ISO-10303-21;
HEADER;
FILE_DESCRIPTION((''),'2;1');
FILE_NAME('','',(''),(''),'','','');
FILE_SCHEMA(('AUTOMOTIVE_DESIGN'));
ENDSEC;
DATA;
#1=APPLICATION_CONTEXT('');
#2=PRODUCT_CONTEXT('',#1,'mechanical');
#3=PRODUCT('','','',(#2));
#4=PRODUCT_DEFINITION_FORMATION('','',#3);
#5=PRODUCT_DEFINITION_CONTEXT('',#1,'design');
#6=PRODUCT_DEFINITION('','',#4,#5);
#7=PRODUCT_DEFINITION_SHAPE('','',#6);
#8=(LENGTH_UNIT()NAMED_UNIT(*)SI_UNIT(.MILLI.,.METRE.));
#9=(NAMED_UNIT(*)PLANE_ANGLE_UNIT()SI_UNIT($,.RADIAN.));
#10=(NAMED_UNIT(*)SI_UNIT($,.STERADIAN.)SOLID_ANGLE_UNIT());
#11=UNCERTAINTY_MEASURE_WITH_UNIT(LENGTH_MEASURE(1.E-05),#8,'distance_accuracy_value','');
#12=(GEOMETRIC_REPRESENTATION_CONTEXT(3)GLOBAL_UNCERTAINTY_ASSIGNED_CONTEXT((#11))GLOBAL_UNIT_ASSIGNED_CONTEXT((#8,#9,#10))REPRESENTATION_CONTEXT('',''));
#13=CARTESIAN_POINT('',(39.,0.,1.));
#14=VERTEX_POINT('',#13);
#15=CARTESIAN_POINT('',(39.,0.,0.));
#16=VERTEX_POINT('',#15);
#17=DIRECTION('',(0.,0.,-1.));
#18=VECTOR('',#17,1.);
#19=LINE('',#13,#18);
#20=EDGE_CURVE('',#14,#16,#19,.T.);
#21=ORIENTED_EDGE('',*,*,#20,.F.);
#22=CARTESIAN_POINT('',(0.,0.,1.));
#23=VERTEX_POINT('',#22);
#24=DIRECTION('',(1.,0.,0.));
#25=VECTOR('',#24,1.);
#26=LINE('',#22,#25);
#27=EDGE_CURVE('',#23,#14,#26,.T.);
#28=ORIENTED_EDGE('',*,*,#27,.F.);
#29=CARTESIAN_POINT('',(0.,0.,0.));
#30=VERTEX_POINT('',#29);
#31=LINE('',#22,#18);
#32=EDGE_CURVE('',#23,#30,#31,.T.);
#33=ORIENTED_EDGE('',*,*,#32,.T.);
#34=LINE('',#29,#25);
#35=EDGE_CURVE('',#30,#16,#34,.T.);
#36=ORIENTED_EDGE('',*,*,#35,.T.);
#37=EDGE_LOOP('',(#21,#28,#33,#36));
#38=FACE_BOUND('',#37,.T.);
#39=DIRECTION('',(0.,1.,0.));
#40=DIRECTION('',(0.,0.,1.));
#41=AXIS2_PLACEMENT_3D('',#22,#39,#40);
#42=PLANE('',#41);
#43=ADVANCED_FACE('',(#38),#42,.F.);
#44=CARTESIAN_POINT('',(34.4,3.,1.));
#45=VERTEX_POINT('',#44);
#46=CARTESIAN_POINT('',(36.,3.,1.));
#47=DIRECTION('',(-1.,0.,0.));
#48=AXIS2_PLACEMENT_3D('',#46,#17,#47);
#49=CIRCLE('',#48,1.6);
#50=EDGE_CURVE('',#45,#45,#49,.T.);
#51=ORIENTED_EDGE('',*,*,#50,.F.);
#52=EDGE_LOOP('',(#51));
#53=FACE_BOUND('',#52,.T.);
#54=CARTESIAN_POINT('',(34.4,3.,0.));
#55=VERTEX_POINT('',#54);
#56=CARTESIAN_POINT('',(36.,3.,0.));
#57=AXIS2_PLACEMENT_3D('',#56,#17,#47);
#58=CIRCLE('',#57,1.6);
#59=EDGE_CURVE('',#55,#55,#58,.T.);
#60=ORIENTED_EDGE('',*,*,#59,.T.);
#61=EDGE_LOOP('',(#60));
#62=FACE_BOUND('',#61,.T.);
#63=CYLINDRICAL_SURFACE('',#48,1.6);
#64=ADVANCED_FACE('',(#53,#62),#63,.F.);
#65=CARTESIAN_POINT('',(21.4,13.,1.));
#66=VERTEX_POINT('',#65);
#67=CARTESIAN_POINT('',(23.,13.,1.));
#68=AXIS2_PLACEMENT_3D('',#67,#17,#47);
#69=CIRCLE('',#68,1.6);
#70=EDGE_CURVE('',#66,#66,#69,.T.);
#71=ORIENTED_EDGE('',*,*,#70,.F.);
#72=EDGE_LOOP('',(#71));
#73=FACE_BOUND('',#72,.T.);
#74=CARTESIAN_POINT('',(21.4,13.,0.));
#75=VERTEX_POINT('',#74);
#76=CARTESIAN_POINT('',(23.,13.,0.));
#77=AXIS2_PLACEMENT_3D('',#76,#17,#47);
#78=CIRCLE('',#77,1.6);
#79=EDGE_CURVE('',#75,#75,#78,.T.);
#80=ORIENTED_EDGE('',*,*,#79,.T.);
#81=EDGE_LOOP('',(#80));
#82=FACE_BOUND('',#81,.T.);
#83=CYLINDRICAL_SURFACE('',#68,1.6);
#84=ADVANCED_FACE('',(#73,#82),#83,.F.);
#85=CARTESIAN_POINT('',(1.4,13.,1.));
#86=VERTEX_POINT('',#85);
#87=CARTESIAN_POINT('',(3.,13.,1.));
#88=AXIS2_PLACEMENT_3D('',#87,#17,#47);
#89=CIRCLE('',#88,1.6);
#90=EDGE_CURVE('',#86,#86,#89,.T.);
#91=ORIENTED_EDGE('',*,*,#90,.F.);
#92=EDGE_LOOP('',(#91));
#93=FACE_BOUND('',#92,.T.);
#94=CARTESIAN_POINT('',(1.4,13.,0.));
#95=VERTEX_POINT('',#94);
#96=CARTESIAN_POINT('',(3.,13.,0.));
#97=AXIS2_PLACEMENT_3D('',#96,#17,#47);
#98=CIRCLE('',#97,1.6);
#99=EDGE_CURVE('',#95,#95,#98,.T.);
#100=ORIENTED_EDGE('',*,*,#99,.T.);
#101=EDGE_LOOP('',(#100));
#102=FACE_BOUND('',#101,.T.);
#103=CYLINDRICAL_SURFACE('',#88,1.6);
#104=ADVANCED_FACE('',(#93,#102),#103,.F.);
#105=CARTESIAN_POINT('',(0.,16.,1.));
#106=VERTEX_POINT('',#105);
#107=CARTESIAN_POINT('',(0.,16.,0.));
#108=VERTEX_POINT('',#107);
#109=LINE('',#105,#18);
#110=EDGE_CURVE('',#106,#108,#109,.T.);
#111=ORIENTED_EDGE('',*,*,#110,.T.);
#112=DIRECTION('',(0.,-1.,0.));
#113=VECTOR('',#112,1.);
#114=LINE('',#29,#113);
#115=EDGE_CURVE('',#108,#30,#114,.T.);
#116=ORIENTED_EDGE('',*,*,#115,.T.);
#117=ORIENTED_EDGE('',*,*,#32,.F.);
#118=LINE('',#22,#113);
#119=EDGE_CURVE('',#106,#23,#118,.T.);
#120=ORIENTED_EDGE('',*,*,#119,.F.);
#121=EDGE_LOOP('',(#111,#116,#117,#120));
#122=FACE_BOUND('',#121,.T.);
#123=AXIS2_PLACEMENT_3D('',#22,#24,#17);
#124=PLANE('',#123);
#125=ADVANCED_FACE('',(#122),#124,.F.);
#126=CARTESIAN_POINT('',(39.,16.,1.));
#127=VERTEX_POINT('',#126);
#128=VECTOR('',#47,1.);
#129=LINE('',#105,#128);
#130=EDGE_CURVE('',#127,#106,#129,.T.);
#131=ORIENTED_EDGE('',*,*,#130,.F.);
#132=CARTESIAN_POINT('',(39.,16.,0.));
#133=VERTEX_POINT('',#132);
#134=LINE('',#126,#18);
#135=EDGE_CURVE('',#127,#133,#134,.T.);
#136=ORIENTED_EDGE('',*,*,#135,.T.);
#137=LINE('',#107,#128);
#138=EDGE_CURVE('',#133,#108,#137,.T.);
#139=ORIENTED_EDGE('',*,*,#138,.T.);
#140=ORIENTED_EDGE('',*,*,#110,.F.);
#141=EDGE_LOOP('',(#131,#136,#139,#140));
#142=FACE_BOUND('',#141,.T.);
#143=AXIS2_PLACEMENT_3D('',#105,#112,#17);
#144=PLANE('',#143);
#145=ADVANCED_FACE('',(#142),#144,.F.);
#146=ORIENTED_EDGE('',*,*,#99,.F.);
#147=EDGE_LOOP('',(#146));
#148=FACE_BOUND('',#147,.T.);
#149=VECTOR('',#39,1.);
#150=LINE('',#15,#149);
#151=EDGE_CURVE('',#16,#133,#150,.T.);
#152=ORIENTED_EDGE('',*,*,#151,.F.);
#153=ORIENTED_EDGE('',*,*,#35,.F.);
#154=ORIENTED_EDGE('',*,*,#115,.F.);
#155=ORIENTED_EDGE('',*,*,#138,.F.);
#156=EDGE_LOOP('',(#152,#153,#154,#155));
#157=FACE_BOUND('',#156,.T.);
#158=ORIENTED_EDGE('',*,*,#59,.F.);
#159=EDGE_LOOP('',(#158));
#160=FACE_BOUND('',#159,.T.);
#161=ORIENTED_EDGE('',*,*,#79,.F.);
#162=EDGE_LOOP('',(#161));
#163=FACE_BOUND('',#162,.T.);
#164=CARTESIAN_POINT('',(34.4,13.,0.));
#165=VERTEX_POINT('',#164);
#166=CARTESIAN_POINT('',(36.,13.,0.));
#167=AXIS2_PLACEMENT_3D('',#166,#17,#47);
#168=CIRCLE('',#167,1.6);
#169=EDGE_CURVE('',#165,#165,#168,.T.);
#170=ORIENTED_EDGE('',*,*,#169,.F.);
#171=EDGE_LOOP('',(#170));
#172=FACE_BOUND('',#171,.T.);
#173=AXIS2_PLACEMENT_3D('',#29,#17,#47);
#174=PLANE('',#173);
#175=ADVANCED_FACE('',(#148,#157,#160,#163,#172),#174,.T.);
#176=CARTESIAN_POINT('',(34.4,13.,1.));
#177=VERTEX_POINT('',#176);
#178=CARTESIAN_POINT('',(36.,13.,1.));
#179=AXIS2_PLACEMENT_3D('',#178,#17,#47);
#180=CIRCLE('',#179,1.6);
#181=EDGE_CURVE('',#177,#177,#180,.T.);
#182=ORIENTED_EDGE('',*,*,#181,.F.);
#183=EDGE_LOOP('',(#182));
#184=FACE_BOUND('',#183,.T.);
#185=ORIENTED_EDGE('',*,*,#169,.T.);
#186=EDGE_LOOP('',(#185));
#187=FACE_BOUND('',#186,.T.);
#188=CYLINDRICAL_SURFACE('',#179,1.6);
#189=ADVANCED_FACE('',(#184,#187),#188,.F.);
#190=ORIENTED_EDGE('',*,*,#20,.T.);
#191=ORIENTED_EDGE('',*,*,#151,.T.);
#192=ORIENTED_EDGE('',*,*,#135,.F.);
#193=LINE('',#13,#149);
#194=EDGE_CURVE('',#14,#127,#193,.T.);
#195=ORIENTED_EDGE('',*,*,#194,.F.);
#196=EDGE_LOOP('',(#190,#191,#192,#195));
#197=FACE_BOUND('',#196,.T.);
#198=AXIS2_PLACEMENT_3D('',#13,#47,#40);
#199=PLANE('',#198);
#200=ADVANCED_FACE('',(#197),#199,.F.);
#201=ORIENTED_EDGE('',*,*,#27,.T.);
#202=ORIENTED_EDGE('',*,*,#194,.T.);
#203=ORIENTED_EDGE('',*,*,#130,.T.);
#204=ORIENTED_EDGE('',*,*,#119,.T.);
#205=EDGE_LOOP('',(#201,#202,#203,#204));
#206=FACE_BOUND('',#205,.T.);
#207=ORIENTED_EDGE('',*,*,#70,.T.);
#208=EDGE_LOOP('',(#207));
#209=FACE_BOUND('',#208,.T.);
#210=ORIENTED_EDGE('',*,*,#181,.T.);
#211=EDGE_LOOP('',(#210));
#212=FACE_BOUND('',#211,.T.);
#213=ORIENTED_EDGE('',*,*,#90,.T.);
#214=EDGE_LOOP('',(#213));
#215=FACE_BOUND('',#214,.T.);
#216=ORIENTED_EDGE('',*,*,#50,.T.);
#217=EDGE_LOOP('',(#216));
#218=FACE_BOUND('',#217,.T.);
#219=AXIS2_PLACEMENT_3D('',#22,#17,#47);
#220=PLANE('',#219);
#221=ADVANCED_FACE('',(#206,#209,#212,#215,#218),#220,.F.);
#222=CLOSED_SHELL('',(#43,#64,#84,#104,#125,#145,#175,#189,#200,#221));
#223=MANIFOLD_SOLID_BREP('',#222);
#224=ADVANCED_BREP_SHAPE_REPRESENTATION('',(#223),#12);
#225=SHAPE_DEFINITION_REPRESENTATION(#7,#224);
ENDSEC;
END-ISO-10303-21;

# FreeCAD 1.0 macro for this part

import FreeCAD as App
import Part
import Sketcher
from FreeCAD import Vector
Q = App.Units.Quantity

doc = App.newDocument("Part")
body = doc.addObject("PartDesign::Body", "Body")

# Sketch on XY plane
sketch1 = body.newObject("Sketcher::SketchObject", "Sketch")
sketch1.AttachmentSupport = (doc.getObject("XY_Plane"), [""])
sketch1.MapMode = "FlatFace"
sketch1.addGeometry([
    Part.LineSegment(Vector(0, 16, 0), Vector(0, 0, 0)),
    Part.LineSegment(Vector(0, 0, 0), Vector(39, 0, 0)),
    Part.LineSegment(Vector(39, 0, 0), Vector(39, 16, 0)),
    Part.LineSegment(Vector(39, 16, 0), Vector(0, 16, 0)),
], False)
sketch1.addConstraint([
    Sketcher.Constraint("Coincident", 0, 2, 1, 1),
    Sketcher.Constraint("Coincident", 1, 2, 2, 1),
    Sketcher.Constraint("Coincident", 2, 2, 3, 1),
    Sketcher.Constraint("Coincident", 3, 2, 0, 1),
    Sketcher.Constraint("Vertical", 0),
    Sketcher.Constraint("Horizontal", 1),
    Sketcher.Constraint("Vertical", 2),
    Sketcher.Constraint("Horizontal", 3),
    Sketcher.Constraint("Coincident", 0, 2, -1, 1),
    Sketcher.Constraint("DistanceX", 1, 1, 1, 2, Q("39 mm")),
    Sketcher.Constraint("DistanceY", 0, 2, 0, 1, Q("16 mm")),
])
pad1 = body.newObject("PartDesign::Pad", "Pad")
pad1.Profile = sketch1
pad1.Length = 1

# Sketch on XY plane
sketch2 = body.newObject("Sketcher::SketchObject", "Sketch001")
sketch2.AttachmentSupport = (doc.getObject("XY_Plane"), [""])
sketch2.MapMode = "FlatFace"
sketch2.addGeometry([
    Part.Circle(Vector(36, 13, 0), Vector(0, 0, 1), 1.6),
    Part.Circle(Vector(36, 3, 0), Vector(0, 0, 1), 1.6),
    Part.Circle(Vector(23, 13, 0), Vector(0, 0, 1), 1.6),
    Part.Circle(Vector(3, 13, 0), Vector(0, 0, 1), 1.6),
], False)
sketch2.addConstraint([
    Sketcher.Constraint("Equal", 0, 1),
    Sketcher.Constraint("Equal", 1, 2),
    Sketcher.Constraint("Equal", 2, 3),
    Sketcher.Constraint("Horizontal", 0, 3, 2, 3),
    Sketcher.Constraint("Horizontal", 2, 3, 3, 3),
    Sketcher.Constraint("Vertical", 0, 3, 1, 3),
    Sketcher.Constraint("Diameter", 0, Q("3.2 mm")),
    Sketcher.Constraint("DistanceX", -1, 1, 0, 3, Q("36 mm")),
    Sketcher.Constraint("DistanceY", -1, 1, 0, 3, Q("13 mm")),
    Sketcher.Constraint("DistanceY", -1, 1, 1, 3, Q("3 mm")),
    Sketcher.Constraint("DistanceX", -1, 1, 2, 3, Q("23 mm")),
    Sketcher.Constraint("DistanceX", -1, 1, 3, 3, Q("3 mm")),
])
pocket1 = body.newObject("PartDesign::Pocket", "Pocket")
pocket1.Profile = sketch2
pocket1.Length = 1
pocket1.Reversed = True

doc.recompute()
